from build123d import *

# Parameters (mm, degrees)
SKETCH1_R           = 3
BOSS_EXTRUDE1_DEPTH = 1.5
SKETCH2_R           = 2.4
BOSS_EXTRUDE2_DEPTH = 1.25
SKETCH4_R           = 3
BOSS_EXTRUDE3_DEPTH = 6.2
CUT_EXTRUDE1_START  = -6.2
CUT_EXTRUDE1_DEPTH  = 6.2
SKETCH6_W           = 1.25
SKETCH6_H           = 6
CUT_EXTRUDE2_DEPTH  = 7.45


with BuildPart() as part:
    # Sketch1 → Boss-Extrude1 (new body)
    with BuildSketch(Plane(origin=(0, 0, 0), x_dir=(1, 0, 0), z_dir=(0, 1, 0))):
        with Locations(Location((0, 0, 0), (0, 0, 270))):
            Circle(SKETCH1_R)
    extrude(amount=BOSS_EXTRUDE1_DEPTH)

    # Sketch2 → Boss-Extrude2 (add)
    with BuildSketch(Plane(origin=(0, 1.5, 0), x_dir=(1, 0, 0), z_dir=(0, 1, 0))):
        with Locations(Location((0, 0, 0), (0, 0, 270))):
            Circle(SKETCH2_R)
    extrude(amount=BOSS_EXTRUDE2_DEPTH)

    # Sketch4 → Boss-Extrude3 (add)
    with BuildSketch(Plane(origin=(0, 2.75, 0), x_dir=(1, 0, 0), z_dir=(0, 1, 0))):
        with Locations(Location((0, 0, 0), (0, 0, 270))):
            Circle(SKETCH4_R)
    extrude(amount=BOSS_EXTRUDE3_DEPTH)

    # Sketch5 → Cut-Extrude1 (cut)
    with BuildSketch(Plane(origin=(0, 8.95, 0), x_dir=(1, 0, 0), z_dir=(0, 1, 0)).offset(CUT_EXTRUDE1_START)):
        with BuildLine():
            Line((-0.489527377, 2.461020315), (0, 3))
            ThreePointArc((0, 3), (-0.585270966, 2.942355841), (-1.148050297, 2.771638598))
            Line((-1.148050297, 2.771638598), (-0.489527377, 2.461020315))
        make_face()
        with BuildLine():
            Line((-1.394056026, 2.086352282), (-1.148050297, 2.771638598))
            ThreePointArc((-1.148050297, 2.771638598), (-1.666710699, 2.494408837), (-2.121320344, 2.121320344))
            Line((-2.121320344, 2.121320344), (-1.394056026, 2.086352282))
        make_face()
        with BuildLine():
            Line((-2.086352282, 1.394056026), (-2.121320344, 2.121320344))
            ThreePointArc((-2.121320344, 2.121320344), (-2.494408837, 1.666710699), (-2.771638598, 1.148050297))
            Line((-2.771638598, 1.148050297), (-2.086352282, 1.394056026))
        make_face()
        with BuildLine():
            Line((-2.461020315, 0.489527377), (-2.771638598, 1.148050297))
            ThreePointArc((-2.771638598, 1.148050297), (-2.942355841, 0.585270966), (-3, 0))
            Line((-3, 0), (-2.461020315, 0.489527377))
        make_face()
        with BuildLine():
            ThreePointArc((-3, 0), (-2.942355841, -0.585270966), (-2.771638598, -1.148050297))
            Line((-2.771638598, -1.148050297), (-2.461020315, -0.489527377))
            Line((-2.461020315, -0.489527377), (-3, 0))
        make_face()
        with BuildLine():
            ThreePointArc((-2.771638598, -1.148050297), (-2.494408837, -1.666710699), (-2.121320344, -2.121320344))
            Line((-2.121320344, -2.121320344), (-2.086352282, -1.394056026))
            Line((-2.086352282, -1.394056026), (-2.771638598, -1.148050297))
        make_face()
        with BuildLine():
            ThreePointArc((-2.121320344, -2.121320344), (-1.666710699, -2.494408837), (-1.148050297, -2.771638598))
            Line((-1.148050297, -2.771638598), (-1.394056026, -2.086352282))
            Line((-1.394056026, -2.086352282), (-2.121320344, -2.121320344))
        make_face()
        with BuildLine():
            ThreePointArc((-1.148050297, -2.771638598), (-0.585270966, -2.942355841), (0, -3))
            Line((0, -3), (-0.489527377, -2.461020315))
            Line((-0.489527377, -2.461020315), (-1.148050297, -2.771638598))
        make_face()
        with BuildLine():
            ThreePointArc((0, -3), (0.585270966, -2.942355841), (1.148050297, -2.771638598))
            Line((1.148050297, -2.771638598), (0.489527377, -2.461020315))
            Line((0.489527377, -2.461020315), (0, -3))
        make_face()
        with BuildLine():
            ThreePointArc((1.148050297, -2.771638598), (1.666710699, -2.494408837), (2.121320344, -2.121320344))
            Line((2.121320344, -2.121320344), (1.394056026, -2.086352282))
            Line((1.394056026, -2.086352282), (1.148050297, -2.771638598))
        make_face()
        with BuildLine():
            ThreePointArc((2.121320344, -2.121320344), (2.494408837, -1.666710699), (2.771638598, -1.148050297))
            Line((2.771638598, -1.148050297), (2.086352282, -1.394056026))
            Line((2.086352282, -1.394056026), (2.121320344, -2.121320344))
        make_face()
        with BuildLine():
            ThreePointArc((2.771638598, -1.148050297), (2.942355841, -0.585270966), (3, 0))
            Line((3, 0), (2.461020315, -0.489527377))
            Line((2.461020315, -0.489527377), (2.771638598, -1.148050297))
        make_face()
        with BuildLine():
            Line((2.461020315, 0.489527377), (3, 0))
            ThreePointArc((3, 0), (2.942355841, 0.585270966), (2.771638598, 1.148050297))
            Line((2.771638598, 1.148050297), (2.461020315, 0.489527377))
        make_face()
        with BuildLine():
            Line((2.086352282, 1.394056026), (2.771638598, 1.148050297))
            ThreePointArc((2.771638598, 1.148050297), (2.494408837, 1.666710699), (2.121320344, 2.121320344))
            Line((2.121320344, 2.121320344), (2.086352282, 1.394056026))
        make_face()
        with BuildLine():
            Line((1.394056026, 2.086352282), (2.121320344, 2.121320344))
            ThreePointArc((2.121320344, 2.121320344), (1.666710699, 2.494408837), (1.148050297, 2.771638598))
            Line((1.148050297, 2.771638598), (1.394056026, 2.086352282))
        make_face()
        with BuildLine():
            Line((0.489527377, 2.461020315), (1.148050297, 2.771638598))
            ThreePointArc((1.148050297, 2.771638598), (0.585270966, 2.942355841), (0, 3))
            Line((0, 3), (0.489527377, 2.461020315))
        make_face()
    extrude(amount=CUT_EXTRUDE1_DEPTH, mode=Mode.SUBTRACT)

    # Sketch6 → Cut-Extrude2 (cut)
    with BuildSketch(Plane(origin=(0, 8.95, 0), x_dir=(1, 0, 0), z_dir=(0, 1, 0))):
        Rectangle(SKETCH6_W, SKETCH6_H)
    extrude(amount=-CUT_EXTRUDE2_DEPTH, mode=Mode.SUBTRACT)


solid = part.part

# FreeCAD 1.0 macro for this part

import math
import FreeCAD as App
import Part
import Sketcher
from FreeCAD import Vector
Q = App.Units.Quantity

doc = App.newDocument("Part")
body = doc.addObject("PartDesign::Body", "Body")

# Sketch on XZ plane
sketch1 = doc.addObject("Sketcher::SketchObject", "Sketch")
body.addObject(sketch1)
sketch1.AttachmentSupport = (doc.XZ_Plane, [""])
sketch1.MapMode = "FlatFace"
sketch1.addGeometry(Part.Circle(Vector(0, 0, 0), Vector(0, 0, 1), 3), False)
sketch1.addConstraint([
    Sketcher.Constraint("Coincident", 0, 3, -1, 1),
    Sketcher.Constraint("Diameter", 0, Q("6 mm")),
])
pad1 = doc.addObject("PartDesign::Pad", "Pad")
body.addObject(pad1)
pad1.Profile = sketch1
pad1.Length = 1.5
pad1.Reversed = True

# Sketch on XZ plane
sketch2 = doc.addObject("Sketcher::SketchObject", "Sketch001")
body.addObject(sketch2)
sketch2.AttachmentSupport = (doc.XZ_Plane, [""])
sketch2.MapMode = "FlatFace"
sketch2.AttachmentOffset = App.Placement(Vector(0, 0, -1.5), App.Rotation())
sketch2.addGeometry(Part.Circle(Vector(0, 0, 0), Vector(0, 0, 1), 2.4), False)
sketch2.addConstraint([
    Sketcher.Constraint("Coincident", 0, 3, -1, 1),
    Sketcher.Constraint("Diameter", 0, Q("4.8 mm")),
])
pad2 = doc.addObject("PartDesign::Pad", "Pad001")
body.addObject(pad2)
pad2.Profile = sketch2
pad2.Length = 1.25
pad2.Reversed = True

# Sketch on XZ plane
sketch3 = doc.addObject("Sketcher::SketchObject", "Sketch002")
body.addObject(sketch3)
sketch3.AttachmentSupport = (doc.XZ_Plane, [""])
sketch3.MapMode = "FlatFace"
sketch3.AttachmentOffset = App.Placement(Vector(0, 0, -2.75), App.Rotation())
sketch3.addGeometry(Part.Circle(Vector(0, 0, 0), Vector(0, 0, 1), 3), False)
sketch3.addConstraint([
    Sketcher.Constraint("Coincident", 0, 3, -1, 1),
    Sketcher.Constraint("Diameter", 0, Q("6 mm")),
])
pad3 = doc.addObject("PartDesign::Pad", "Pad002")
body.addObject(pad3)
pad3.Profile = sketch3
pad3.Length = 6.2
pad3.Reversed = True

# Sketch on XZ plane
sketch4 = doc.addObject("Sketcher::SketchObject", "Sketch003")
body.addObject(sketch4)
sketch4.AttachmentSupport = (doc.XZ_Plane, [""])
sketch4.MapMode = "FlatFace"
sketch4.AttachmentOffset = App.Placement(Vector(0, 0, -2.75), App.Rotation())
sketch4.addGeometry([
    Part.LineSegment(Vector(-0.5, -2.5, 0), Vector(0, -3, 0)),  # 0
    Part.ArcOfCircle(Part.Circle(Vector(0, 0, 0), Vector(0, 0, 1), 3), math.radians(-112), math.radians(-90)),  # 1
    Part.LineSegment(Vector(-1.1, -2.8, 0), Vector(-0.5, -2.5, 0)),  # 2
    Part.LineSegment(Vector(-1.4, -2.1, 0), Vector(-1.1, -2.8, 0)),  # 3
    Part.ArcOfCircle(Part.Circle(Vector(0, 0, 0), Vector(0, 0, 1), 3), math.radians(-135), math.radians(-113)),  # 4
    Part.LineSegment(Vector(-2.1, -2.1, 0), Vector(-1.4, -2.1, 0)),  # 5
    Part.LineSegment(Vector(-2.1, -1.4, 0), Vector(-2.1, -2.1, 0)),  # 6
    Part.ArcOfCircle(Part.Circle(Vector(0, 0, 0), Vector(0, 0, 1), 3), math.radians(-157), math.radians(-135)),  # 7
    Part.LineSegment(Vector(-2.8, -1.1, 0), Vector(-2.1, -1.4, 0)),  # 8
    Part.LineSegment(Vector(-2.5, -0.5, 0), Vector(-2.8, -1.1, 0)),  # 9
    Part.ArcOfCircle(Part.Circle(Vector(0, 0, 0), Vector(0, 0, 1), 3), math.radians(-180), math.radians(-158)),  # 10
    Part.LineSegment(Vector(-3, 0, 0), Vector(-2.5, -0.5, 0)),  # 11
    Part.ArcOfCircle(Part.Circle(Vector(0, 0, 0), Vector(0, 0, 1), 3), math.radians(158), math.radians(180)),  # 12
    Part.LineSegment(Vector(-2.8, 1.1, 0), Vector(-2.5, 0.5, 0)),  # 13
    Part.LineSegment(Vector(-2.5, 0.5, 0), Vector(-3, 0, 0)),  # 14
    Part.ArcOfCircle(Part.Circle(Vector(0, 0, 0), Vector(0, 0, 1), 3), math.radians(135), math.radians(157)),  # 15
    Part.LineSegment(Vector(-2.1, 2.1, 0), Vector(-2.1, 1.4, 0)),  # 16
    Part.LineSegment(Vector(-2.1, 1.4, 0), Vector(-2.8, 1.1, 0)),  # 17
    Part.ArcOfCircle(Part.Circle(Vector(0, 0, 0), Vector(0, 0, 1), 3), math.radians(113), math.radians(135)),  # 18
    Part.LineSegment(Vector(-1.1, 2.8, 0), Vector(-1.4, 2.1, 0)),  # 19
    Part.LineSegment(Vector(-1.4, 2.1, 0), Vector(-2.1, 2.1, 0)),  # 20
    Part.ArcOfCircle(Part.Circle(Vector(0, 0, 0), Vector(0, 0, 1), 3), math.radians(90), math.radians(112)),  # 21
    Part.LineSegment(Vector(0, 3, 0), Vector(-0.5, 2.5, 0)),  # 22
    Part.LineSegment(Vector(-0.5, 2.5, 0), Vector(-1.1, 2.8, 0)),  # 23
    Part.ArcOfCircle(Part.Circle(Vector(0, 0, 0), Vector(0, 0, 1), 3), math.radians(68), math.radians(90)),  # 24
    Part.LineSegment(Vector(1.1, 2.8, 0), Vector(0.5, 2.5, 0)),  # 25
    Part.LineSegment(Vector(0.5, 2.5, 0), Vector(0, 3, 0)),  # 26
    Part.ArcOfCircle(Part.Circle(Vector(0, 0, 0), Vector(0, 0, 1), 3), math.radians(45), math.radians(67)),  # 27
    Part.LineSegment(Vector(2.1, 2.1, 0), Vector(1.4, 2.1, 0)),  # 28
    Part.LineSegment(Vector(1.4, 2.1, 0), Vector(1.1, 2.8, 0)),  # 29
    Part.ArcOfCircle(Part.Circle(Vector(0, 0, 0), Vector(0, 0, 1), 3), math.radians(23), math.radians(45)),  # 30
    Part.LineSegment(Vector(2.8, 1.1, 0), Vector(2.1, 1.4, 0)),  # 31
    Part.LineSegment(Vector(2.1, 1.4, 0), Vector(2.1, 2.1, 0)),  # 32
    Part.ArcOfCircle(Part.Circle(Vector(0, 0, 0), Vector(0, 0, 1), 3), math.radians(0), math.radians(22)),  # 33
    Part.LineSegment(Vector(3, 0, 0), Vector(2.5, 0.5, 0)),  # 34
    Part.LineSegment(Vector(2.5, 0.5, 0), Vector(2.8, 1.1, 0)),  # 35
    Part.LineSegment(Vector(2.5, -0.5, 0), Vector(3, 0, 0)),  # 36
    Part.ArcOfCircle(Part.Circle(Vector(0, 0, 0), Vector(0, 0, 1), 3), math.radians(-22), math.radians(0)),  # 37
    Part.LineSegment(Vector(2.8, -1.1, 0), Vector(2.5, -0.5, 0)),  # 38
    Part.LineSegment(Vector(2.1, -1.4, 0), Vector(2.8, -1.1, 0)),  # 39
    Part.ArcOfCircle(Part.Circle(Vector(0, 0, 0), Vector(0, 0, 1), 3), math.radians(-45), math.radians(-23)),  # 40
    Part.LineSegment(Vector(2.1, -2.1, 0), Vector(2.1, -1.4, 0)),  # 41
    Part.LineSegment(Vector(1.4, -2.1, 0), Vector(2.1, -2.1, 0)),  # 42
    Part.ArcOfCircle(Part.Circle(Vector(0, 0, 0), Vector(0, 0, 1), 3), math.radians(-67), math.radians(-45)),  # 43
    Part.LineSegment(Vector(1.1, -2.8, 0), Vector(1.4, -2.1, 0)),  # 44
    Part.LineSegment(Vector(0.5, -2.5, 0), Vector(1.1, -2.8, 0)),  # 45
    Part.ArcOfCircle(Part.Circle(Vector(0, 0, 0), Vector(0, 0, 1), 3), math.radians(-90), math.radians(-68)),  # 46
    Part.LineSegment(Vector(0, -3, 0), Vector(0.5, -2.5, 0)),  # 47
], False)
sketch4.addConstraint([
    Sketcher.Constraint("Coincident", 0, 2, 1, 2),
    Sketcher.Constraint("Coincident", 1, 1, 2, 1),
    Sketcher.Constraint("Coincident", 2, 2, 0, 1),
    Sketcher.Constraint("Coincident", 3, 2, 4, 2),
    Sketcher.Constraint("Coincident", 4, 1, 5, 1),
    Sketcher.Constraint("Coincident", 5, 2, 3, 1),
    Sketcher.Constraint("Coincident", 6, 2, 7, 2),
    Sketcher.Constraint("Coincident", 7, 1, 8, 1),
    Sketcher.Constraint("Coincident", 8, 2, 6, 1),
    Sketcher.Constraint("Coincident", 9, 2, 10, 2),
    Sketcher.Constraint("Coincident", 10, 1, 11, 1),
    Sketcher.Constraint("Coincident", 11, 2, 9, 1),
    Sketcher.Constraint("Coincident", 12, 1, 13, 1),
    Sketcher.Constraint("Coincident", 13, 2, 14, 1),
    Sketcher.Constraint("Coincident", 14, 2, 12, 2),
    Sketcher.Constraint("Coincident", 15, 1, 16, 1),
    Sketcher.Constraint("Coincident", 16, 2, 17, 1),
    Sketcher.Constraint("Coincident", 17, 2, 15, 2),
    Sketcher.Constraint("Coincident", 18, 1, 19, 1),
    Sketcher.Constraint("Coincident", 19, 2, 20, 1),
    Sketcher.Constraint("Coincident", 20, 2, 18, 2),
    Sketcher.Constraint("Coincident", 21, 1, 22, 1),
    Sketcher.Constraint("Coincident", 22, 2, 23, 1),
    Sketcher.Constraint("Coincident", 23, 2, 21, 2),
    Sketcher.Constraint("Coincident", 24, 1, 25, 1),
    Sketcher.Constraint("Coincident", 25, 2, 26, 1),
    Sketcher.Constraint("Coincident", 26, 2, 24, 2),
    Sketcher.Constraint("Coincident", 27, 1, 28, 1),
    Sketcher.Constraint("Coincident", 28, 2, 29, 1),
    Sketcher.Constraint("Coincident", 29, 2, 27, 2),
    Sketcher.Constraint("Coincident", 30, 1, 31, 1),
    Sketcher.Constraint("Coincident", 31, 2, 32, 1),
    Sketcher.Constraint("Coincident", 32, 2, 30, 2),
    Sketcher.Constraint("Coincident", 33, 1, 34, 1),
    Sketcher.Constraint("Coincident", 34, 2, 35, 1),
    Sketcher.Constraint("Coincident", 35, 2, 33, 2),
    Sketcher.Constraint("Coincident", 36, 2, 37, 2),
    Sketcher.Constraint("Coincident", 37, 1, 38, 1),
    Sketcher.Constraint("Coincident", 38, 2, 36, 1),
    Sketcher.Constraint("Coincident", 39, 2, 40, 2),
    Sketcher.Constraint("Coincident", 40, 1, 41, 1),
    Sketcher.Constraint("Coincident", 41, 2, 39, 1),
    Sketcher.Constraint("Coincident", 42, 2, 43, 2),
    Sketcher.Constraint("Coincident", 43, 1, 44, 1),
    Sketcher.Constraint("Coincident", 44, 2, 42, 1),
    Sketcher.Constraint("Coincident", 45, 2, 46, 2),
    Sketcher.Constraint("Coincident", 46, 1, 47, 1),
    Sketcher.Constraint("Coincident", 47, 2, 45, 1),
    Sketcher.Constraint("Coincident", 1, 3, -1, 1),
    Sketcher.Constraint("Coincident", 4, 3, -1, 1),
    Sketcher.Constraint("Coincident", 7, 3, -1, 1),
    Sketcher.Constraint("Coincident", 10, 3, -1, 1),
    Sketcher.Constraint("Coincident", 12, 3, -1, 1),
    Sketcher.Constraint("Coincident", 15, 3, -1, 1),
    Sketcher.Constraint("Coincident", 18, 3, -1, 1),
    Sketcher.Constraint("Coincident", 21, 3, -1, 1),
    Sketcher.Constraint("Coincident", 24, 3, -1, 1),
    Sketcher.Constraint("Coincident", 27, 3, -1, 1),
    Sketcher.Constraint("Coincident", 30, 3, -1, 1),
    Sketcher.Constraint("Coincident", 33, 3, -1, 1),
    Sketcher.Constraint("Coincident", 37, 3, -1, 1),
    Sketcher.Constraint("Coincident", 40, 3, -1, 1),
    Sketcher.Constraint("Coincident", 43, 3, -1, 1),
    Sketcher.Constraint("Coincident", 46, 3, -1, 1),
    Sketcher.Constraint("Coincident", 3, 2, 1, 1),
    Sketcher.Constraint("Coincident", 6, 2, 4, 1),
    Sketcher.Constraint("Coincident", 9, 2, 7, 1),
    Sketcher.Constraint("Coincident", 14, 2, 10, 1),
    Sketcher.Constraint("Coincident", 17, 2, 12, 1),
    Sketcher.Constraint("Coincident", 20, 2, 15, 1),
    Sketcher.Constraint("Coincident", 23, 2, 18, 1),
    Sketcher.Constraint("Coincident", 26, 2, 21, 1),
    Sketcher.Constraint("Coincident", 29, 2, 24, 1),
    Sketcher.Constraint("Coincident", 32, 2, 27, 1),
    Sketcher.Constraint("Coincident", 35, 2, 30, 1),
    Sketcher.Constraint("Coincident", 36, 2, 33, 1),
    Sketcher.Constraint("Coincident", 39, 2, 37, 1),
    Sketcher.Constraint("Coincident", 42, 2, 40, 1),
    Sketcher.Constraint("Coincident", 45, 2, 43, 1),
    Sketcher.Constraint("Symmetric", 2, 2, 25, 2, -1, 1),
    Sketcher.Constraint("Symmetric", 5, 2, 28, 2, -1, 1),
    Sketcher.Constraint("Symmetric", 8, 2, 31, 2, -1, 1),
    Sketcher.Constraint("Symmetric", 11, 2, 34, 2, -1, 1),
    Sketcher.Constraint("Symmetric", 13, 2, 38, 2, -1, 1),
    Sketcher.Constraint("Symmetric", 16, 2, 41, 2, -1, 1),
    Sketcher.Constraint("Symmetric", 19, 2, 44, 2, -1, 1),
    Sketcher.Constraint("Symmetric", 22, 2, 47, 2, -1, 1),
    Sketcher.Constraint("Symmetric", 22, 2, 25, 2, -2),
    Sketcher.Constraint("Symmetric", 19, 2, 28, 2, -2),
    Sketcher.Constraint("Symmetric", 16, 2, 31, 2, -2),
    Sketcher.Constraint("Symmetric", 13, 2, 34, 2, -2),
    Sketcher.Constraint("PointOnObject", 0, 2, -2),
    Sketcher.Constraint("PointOnObject", 10, 1, -1),
    Sketcher.Constraint("PointOnObject", 21, 1, -2),
    Sketcher.Constraint("PointOnObject", 33, 1, -1),
    Sketcher.Constraint("PointOnObject", 46, 1, -2),
    Sketcher.Constraint("Perpendicular", 2, 13),
    Sketcher.Constraint("Perpendicular", 0, 14),
    Sketcher.Constraint("Perpendicular", 5, 16),
    Sketcher.Constraint("Perpendicular", 3, 17),
    Sketcher.Constraint("Perpendicular", 8, 19),
    Sketcher.Constraint("Perpendicular", 13, 25),
    Sketcher.Constraint("Perpendicular", 16, 28),
    Sketcher.Constraint("Perpendicular", 19, 31),
    Sketcher.Constraint("Perpendicular", 25, 38),
    Sketcher.Constraint("Perpendicular", 28, 41),
    Sketcher.Constraint("Perpendicular", 31, 44),
    Sketcher.Constraint("Horizontal", 23, 2, 24, 1),
    Sketcher.Constraint("Horizontal", 20, 2, 27, 1),
    Sketcher.Constraint("Equal", 0, 2),
    Sketcher.Constraint("Equal", 2, 3),
    Sketcher.Constraint("Equal", 3, 5),
    Sketcher.Constraint("Equal", 5, 6),
    Sketcher.Constraint("Equal", 6, 8),
    Sketcher.Constraint("Radius", 1, Q("3 mm")),
    Sketcher.Constraint("DistanceX", 1, 1, -1, 1, Q("1.14805 mm")),
    Sketcher.Constraint("DistanceY", 2, 2, -1, 1, Q("2.46102 mm")),
])
pocket1 = doc.addObject("PartDesign::Pocket", "Pocket")
body.addObject(pocket1)
pocket1.Profile = sketch4
pocket1.Length = 6.2

# Sketch on XZ plane
sketch5 = doc.addObject("Sketcher::SketchObject", "Sketch004")
body.addObject(sketch5)
sketch5.AttachmentSupport = (doc.XZ_Plane, [""])
sketch5.MapMode = "FlatFace"
sketch5.AttachmentOffset = App.Placement(Vector(0, 0, -8.95), App.Rotation())
sketch5.addGeometry([
    Part.LineSegment(Vector(-0.6, -3, 0), Vector(-0.6, 3, 0)),
    Part.LineSegment(Vector(-0.6, 3, 0), Vector(0.6, 3, 0)),
    Part.LineSegment(Vector(0.6, 3, 0), Vector(0.6, -3, 0)),
    Part.LineSegment(Vector(0.6, -3, 0), Vector(-0.6, -3, 0)),
], False)
sketch5.addConstraint([
    Sketcher.Constraint("Coincident", 0, 2, 1, 1),
    Sketcher.Constraint("Coincident", 1, 2, 2, 1),
    Sketcher.Constraint("Coincident", 2, 2, 3, 1),
    Sketcher.Constraint("Coincident", 3, 2, 0, 1),
    Sketcher.Constraint("Vertical", 0),
    Sketcher.Constraint("Horizontal", 1),
    Sketcher.Constraint("Vertical", 2),
    Sketcher.Constraint("Horizontal", 3),
    Sketcher.Constraint("Symmetric", 0, 2, 2, 2, -1, 1),
    Sketcher.Constraint("DistanceY", 0, 1, 0, 2, Q("6 mm")),
    Sketcher.Constraint("DistanceX", 1, 1, 1, 2, Q("1.25 mm")),
])
pocket2 = doc.addObject("PartDesign::Pocket", "Pocket001")
body.addObject(pocket2)
pocket2.Profile = sketch5
pocket2.Length = 7.45
pocket2.Reversed = True

doc.recompute()
